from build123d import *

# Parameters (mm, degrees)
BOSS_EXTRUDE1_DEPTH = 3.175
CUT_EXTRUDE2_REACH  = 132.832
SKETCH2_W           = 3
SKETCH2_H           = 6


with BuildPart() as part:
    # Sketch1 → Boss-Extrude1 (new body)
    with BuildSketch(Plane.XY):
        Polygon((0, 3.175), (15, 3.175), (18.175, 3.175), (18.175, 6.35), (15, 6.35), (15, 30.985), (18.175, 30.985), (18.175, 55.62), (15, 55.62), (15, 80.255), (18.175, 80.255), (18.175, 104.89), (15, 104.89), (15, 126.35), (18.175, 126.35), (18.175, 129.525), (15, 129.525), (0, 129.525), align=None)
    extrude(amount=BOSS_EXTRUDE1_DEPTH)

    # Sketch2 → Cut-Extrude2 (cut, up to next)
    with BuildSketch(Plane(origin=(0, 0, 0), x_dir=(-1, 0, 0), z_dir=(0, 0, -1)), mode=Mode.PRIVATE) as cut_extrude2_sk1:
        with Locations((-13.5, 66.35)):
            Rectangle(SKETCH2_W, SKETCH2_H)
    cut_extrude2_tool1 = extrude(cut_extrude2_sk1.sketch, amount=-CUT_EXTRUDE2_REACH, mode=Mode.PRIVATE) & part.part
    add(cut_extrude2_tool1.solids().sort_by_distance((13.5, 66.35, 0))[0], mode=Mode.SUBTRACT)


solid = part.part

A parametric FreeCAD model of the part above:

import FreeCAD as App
import Part
import Sketcher


def add_polygon(sketch, points):
    """Adds a closed chain of lines whose ends are joined by coincident constraints."""
    first, n = sketch.GeometryCount, len(points)
    for a, b in zip(points, points[1:] + points[:1]):
        sketch.addGeometry(Part.LineSegment(App.Vector(*a, 0), App.Vector(*b, 0)), False)
    for i in range(n):
        sketch.addConstraint(Sketcher.Constraint("Coincident", first + i, 2, first + (i + 1) % n, 1))

doc = App.newDocument("Part")
body = doc.addObject("PartDesign::Body", "Body")

# Sketch on XY plane
sketch1 = body.newObject("Sketcher::SketchObject", "Sketch")
sketch1.AttachmentSupport = (doc.getObject("XY_Plane"), [""])
sketch1.MapMode = "FlatFace"
add_polygon(sketch1, [(0, 3.2), (18.2, 3.2), (18.2, 6.3), (15, 6.3), (15, 31), (18.2, 31), (18.2, 55.6), (15, 55.6), (15, 80.3), (18.2, 80.3), (18.2, 104.9), (15, 104.9), (15, 126.3), (18.2, 126.3), (18.2, 129.5), (0, 129.5)])  # lines 0-15
sketch1.addConstraint([
    Sketcher.Constraint("Horizontal", 0),
    Sketcher.Constraint("Vertical", 1),
    Sketcher.Constraint("Horizontal", 2),
    Sketcher.Constraint("Vertical", 3),
    Sketcher.Constraint("Horizontal", 4),
    Sketcher.Constraint("Vertical", 5),
    Sketcher.Constraint("Horizontal", 6),
    Sketcher.Constraint("Vertical", 7),
    Sketcher.Constraint("Horizontal", 8),
    Sketcher.Constraint("Vertical", 9),
    Sketcher.Constraint("Horizontal", 10),
    Sketcher.Constraint("Vertical", 11),
    Sketcher.Constraint("Horizontal", 12),
    Sketcher.Constraint("Vertical", 13),
    Sketcher.Constraint("Horizontal", 14),
    Sketcher.Constraint("Vertical", 15),
    Sketcher.Constraint("PointOnObject", 14, 2, -2),
    Sketcher.Constraint("Vertical", 1, 2, 4, 2),
    Sketcher.Constraint("Vertical", 3, 2, 6, 2),
    Sketcher.Constraint("Vertical", 5, 2, 8, 2),
    Sketcher.Constraint("Vertical", 7, 2, 10, 2),
    Sketcher.Constraint("Vertical", 9, 2, 12, 2),
    Sketcher.Constraint("Equal", 12, 1),
    Sketcher.Constraint("Equal", 3, 5),
    Sketcher.Constraint("Equal", 5, 7),
    Sketcher.Constraint("Equal", 7, 9),
    Sketcher.Constraint("Equal", 1, 13),
    Sketcher.Constraint("DistanceX", -1, 1, 2, 2, 15.0),
    Sketcher.Constraint("DistanceY", 11, 1, 11, 2, 21.46),
    Sketcher.Constraint("DistanceY", 15, 2, 15, 1, 126.35),
    Sketcher.Constraint("DistanceX", 0, 1, 0, 2, 18.175),
    Sketcher.Constraint("DistanceY", -1, 1, 1, 2, 6.35),
])
pad1 = body.newObject("PartDesign::Pad", "Pad")
pad1.Profile = sketch1
pad1.Length = 3.175

# Sketch on XY plane
sketch2 = body.newObject("Sketcher::SketchObject", "Sketch001")
sketch2.AttachmentSupport = (doc.getObject("XY_Plane"), [""])
sketch2.MapMode = "FlatFace"
add_polygon(sketch2, [(15, 69.3), (15, 63.4), (12, 63.4), (12, 69.3)])  # lines 0-3
sketch2.addConstraint([
    Sketcher.Constraint("Vertical", 0),
    Sketcher.Constraint("Horizontal", 1),
    Sketcher.Constraint("Vertical", 2),
    Sketcher.Constraint("Horizontal", 3),
    Sketcher.Constraint("DistanceX", 1, 2, 1, 1, 3.0),
    Sketcher.Constraint("DistanceY", 0, 2, 0, 1, 6.0),
    Sketcher.Constraint("DistanceX", -1, 1, 0, 2, 15.0),
    Sketcher.Constraint("DistanceY", -1, 1, 0, 2, 63.35),
])
pocket1 = body.newObject("PartDesign::Pocket", "Pocket")
pocket1.Profile = sketch2
pocket1.Type = "UpToFirst"
pocket1.Reversed = True

doc.recompute()
